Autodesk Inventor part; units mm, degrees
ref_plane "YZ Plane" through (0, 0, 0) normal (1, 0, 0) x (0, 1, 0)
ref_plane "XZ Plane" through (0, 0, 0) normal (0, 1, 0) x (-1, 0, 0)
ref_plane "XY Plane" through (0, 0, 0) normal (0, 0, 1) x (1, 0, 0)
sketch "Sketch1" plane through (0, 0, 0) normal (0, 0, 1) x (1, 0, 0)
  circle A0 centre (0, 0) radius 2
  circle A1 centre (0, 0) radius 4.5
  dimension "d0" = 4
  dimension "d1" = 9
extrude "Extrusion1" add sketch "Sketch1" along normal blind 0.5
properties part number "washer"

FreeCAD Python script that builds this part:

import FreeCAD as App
import Part
import Sketcher

doc = App.newDocument("Part")
body = doc.addObject("PartDesign::Body", "Body")

# Sketch on XY plane
sketch1 = body.newObject("Sketcher::SketchObject", "Sketch")
sketch1.AttachmentSupport = (doc.getObject("XY_Plane"), [""])
sketch1.MapMode = "FlatFace"
sketch1.addGeometry(Part.Circle(App.Vector(0, 0, 0), App.Vector(0, 0, 1), 4.5), False)
sketch1.addGeometry(Part.Circle(App.Vector(0, 0, 0), App.Vector(0, 0, 1), 2), False)
sketch1.addConstraint(Sketcher.Constraint("Coincident", 0, 3, -1, 1))
sketch1.addConstraint(Sketcher.Constraint("Coincident", 1, 3, -1, 1))
sketch1.addConstraint(Sketcher.Constraint("Diameter", 0, 9.0))
sketch1.addConstraint(Sketcher.Constraint("Diameter", 1, 4.0))
pad1 = body.newObject("PartDesign::Pad", "Pad")
pad1.Profile = sketch1
pad1.Length = 0.5

doc.recompute()
